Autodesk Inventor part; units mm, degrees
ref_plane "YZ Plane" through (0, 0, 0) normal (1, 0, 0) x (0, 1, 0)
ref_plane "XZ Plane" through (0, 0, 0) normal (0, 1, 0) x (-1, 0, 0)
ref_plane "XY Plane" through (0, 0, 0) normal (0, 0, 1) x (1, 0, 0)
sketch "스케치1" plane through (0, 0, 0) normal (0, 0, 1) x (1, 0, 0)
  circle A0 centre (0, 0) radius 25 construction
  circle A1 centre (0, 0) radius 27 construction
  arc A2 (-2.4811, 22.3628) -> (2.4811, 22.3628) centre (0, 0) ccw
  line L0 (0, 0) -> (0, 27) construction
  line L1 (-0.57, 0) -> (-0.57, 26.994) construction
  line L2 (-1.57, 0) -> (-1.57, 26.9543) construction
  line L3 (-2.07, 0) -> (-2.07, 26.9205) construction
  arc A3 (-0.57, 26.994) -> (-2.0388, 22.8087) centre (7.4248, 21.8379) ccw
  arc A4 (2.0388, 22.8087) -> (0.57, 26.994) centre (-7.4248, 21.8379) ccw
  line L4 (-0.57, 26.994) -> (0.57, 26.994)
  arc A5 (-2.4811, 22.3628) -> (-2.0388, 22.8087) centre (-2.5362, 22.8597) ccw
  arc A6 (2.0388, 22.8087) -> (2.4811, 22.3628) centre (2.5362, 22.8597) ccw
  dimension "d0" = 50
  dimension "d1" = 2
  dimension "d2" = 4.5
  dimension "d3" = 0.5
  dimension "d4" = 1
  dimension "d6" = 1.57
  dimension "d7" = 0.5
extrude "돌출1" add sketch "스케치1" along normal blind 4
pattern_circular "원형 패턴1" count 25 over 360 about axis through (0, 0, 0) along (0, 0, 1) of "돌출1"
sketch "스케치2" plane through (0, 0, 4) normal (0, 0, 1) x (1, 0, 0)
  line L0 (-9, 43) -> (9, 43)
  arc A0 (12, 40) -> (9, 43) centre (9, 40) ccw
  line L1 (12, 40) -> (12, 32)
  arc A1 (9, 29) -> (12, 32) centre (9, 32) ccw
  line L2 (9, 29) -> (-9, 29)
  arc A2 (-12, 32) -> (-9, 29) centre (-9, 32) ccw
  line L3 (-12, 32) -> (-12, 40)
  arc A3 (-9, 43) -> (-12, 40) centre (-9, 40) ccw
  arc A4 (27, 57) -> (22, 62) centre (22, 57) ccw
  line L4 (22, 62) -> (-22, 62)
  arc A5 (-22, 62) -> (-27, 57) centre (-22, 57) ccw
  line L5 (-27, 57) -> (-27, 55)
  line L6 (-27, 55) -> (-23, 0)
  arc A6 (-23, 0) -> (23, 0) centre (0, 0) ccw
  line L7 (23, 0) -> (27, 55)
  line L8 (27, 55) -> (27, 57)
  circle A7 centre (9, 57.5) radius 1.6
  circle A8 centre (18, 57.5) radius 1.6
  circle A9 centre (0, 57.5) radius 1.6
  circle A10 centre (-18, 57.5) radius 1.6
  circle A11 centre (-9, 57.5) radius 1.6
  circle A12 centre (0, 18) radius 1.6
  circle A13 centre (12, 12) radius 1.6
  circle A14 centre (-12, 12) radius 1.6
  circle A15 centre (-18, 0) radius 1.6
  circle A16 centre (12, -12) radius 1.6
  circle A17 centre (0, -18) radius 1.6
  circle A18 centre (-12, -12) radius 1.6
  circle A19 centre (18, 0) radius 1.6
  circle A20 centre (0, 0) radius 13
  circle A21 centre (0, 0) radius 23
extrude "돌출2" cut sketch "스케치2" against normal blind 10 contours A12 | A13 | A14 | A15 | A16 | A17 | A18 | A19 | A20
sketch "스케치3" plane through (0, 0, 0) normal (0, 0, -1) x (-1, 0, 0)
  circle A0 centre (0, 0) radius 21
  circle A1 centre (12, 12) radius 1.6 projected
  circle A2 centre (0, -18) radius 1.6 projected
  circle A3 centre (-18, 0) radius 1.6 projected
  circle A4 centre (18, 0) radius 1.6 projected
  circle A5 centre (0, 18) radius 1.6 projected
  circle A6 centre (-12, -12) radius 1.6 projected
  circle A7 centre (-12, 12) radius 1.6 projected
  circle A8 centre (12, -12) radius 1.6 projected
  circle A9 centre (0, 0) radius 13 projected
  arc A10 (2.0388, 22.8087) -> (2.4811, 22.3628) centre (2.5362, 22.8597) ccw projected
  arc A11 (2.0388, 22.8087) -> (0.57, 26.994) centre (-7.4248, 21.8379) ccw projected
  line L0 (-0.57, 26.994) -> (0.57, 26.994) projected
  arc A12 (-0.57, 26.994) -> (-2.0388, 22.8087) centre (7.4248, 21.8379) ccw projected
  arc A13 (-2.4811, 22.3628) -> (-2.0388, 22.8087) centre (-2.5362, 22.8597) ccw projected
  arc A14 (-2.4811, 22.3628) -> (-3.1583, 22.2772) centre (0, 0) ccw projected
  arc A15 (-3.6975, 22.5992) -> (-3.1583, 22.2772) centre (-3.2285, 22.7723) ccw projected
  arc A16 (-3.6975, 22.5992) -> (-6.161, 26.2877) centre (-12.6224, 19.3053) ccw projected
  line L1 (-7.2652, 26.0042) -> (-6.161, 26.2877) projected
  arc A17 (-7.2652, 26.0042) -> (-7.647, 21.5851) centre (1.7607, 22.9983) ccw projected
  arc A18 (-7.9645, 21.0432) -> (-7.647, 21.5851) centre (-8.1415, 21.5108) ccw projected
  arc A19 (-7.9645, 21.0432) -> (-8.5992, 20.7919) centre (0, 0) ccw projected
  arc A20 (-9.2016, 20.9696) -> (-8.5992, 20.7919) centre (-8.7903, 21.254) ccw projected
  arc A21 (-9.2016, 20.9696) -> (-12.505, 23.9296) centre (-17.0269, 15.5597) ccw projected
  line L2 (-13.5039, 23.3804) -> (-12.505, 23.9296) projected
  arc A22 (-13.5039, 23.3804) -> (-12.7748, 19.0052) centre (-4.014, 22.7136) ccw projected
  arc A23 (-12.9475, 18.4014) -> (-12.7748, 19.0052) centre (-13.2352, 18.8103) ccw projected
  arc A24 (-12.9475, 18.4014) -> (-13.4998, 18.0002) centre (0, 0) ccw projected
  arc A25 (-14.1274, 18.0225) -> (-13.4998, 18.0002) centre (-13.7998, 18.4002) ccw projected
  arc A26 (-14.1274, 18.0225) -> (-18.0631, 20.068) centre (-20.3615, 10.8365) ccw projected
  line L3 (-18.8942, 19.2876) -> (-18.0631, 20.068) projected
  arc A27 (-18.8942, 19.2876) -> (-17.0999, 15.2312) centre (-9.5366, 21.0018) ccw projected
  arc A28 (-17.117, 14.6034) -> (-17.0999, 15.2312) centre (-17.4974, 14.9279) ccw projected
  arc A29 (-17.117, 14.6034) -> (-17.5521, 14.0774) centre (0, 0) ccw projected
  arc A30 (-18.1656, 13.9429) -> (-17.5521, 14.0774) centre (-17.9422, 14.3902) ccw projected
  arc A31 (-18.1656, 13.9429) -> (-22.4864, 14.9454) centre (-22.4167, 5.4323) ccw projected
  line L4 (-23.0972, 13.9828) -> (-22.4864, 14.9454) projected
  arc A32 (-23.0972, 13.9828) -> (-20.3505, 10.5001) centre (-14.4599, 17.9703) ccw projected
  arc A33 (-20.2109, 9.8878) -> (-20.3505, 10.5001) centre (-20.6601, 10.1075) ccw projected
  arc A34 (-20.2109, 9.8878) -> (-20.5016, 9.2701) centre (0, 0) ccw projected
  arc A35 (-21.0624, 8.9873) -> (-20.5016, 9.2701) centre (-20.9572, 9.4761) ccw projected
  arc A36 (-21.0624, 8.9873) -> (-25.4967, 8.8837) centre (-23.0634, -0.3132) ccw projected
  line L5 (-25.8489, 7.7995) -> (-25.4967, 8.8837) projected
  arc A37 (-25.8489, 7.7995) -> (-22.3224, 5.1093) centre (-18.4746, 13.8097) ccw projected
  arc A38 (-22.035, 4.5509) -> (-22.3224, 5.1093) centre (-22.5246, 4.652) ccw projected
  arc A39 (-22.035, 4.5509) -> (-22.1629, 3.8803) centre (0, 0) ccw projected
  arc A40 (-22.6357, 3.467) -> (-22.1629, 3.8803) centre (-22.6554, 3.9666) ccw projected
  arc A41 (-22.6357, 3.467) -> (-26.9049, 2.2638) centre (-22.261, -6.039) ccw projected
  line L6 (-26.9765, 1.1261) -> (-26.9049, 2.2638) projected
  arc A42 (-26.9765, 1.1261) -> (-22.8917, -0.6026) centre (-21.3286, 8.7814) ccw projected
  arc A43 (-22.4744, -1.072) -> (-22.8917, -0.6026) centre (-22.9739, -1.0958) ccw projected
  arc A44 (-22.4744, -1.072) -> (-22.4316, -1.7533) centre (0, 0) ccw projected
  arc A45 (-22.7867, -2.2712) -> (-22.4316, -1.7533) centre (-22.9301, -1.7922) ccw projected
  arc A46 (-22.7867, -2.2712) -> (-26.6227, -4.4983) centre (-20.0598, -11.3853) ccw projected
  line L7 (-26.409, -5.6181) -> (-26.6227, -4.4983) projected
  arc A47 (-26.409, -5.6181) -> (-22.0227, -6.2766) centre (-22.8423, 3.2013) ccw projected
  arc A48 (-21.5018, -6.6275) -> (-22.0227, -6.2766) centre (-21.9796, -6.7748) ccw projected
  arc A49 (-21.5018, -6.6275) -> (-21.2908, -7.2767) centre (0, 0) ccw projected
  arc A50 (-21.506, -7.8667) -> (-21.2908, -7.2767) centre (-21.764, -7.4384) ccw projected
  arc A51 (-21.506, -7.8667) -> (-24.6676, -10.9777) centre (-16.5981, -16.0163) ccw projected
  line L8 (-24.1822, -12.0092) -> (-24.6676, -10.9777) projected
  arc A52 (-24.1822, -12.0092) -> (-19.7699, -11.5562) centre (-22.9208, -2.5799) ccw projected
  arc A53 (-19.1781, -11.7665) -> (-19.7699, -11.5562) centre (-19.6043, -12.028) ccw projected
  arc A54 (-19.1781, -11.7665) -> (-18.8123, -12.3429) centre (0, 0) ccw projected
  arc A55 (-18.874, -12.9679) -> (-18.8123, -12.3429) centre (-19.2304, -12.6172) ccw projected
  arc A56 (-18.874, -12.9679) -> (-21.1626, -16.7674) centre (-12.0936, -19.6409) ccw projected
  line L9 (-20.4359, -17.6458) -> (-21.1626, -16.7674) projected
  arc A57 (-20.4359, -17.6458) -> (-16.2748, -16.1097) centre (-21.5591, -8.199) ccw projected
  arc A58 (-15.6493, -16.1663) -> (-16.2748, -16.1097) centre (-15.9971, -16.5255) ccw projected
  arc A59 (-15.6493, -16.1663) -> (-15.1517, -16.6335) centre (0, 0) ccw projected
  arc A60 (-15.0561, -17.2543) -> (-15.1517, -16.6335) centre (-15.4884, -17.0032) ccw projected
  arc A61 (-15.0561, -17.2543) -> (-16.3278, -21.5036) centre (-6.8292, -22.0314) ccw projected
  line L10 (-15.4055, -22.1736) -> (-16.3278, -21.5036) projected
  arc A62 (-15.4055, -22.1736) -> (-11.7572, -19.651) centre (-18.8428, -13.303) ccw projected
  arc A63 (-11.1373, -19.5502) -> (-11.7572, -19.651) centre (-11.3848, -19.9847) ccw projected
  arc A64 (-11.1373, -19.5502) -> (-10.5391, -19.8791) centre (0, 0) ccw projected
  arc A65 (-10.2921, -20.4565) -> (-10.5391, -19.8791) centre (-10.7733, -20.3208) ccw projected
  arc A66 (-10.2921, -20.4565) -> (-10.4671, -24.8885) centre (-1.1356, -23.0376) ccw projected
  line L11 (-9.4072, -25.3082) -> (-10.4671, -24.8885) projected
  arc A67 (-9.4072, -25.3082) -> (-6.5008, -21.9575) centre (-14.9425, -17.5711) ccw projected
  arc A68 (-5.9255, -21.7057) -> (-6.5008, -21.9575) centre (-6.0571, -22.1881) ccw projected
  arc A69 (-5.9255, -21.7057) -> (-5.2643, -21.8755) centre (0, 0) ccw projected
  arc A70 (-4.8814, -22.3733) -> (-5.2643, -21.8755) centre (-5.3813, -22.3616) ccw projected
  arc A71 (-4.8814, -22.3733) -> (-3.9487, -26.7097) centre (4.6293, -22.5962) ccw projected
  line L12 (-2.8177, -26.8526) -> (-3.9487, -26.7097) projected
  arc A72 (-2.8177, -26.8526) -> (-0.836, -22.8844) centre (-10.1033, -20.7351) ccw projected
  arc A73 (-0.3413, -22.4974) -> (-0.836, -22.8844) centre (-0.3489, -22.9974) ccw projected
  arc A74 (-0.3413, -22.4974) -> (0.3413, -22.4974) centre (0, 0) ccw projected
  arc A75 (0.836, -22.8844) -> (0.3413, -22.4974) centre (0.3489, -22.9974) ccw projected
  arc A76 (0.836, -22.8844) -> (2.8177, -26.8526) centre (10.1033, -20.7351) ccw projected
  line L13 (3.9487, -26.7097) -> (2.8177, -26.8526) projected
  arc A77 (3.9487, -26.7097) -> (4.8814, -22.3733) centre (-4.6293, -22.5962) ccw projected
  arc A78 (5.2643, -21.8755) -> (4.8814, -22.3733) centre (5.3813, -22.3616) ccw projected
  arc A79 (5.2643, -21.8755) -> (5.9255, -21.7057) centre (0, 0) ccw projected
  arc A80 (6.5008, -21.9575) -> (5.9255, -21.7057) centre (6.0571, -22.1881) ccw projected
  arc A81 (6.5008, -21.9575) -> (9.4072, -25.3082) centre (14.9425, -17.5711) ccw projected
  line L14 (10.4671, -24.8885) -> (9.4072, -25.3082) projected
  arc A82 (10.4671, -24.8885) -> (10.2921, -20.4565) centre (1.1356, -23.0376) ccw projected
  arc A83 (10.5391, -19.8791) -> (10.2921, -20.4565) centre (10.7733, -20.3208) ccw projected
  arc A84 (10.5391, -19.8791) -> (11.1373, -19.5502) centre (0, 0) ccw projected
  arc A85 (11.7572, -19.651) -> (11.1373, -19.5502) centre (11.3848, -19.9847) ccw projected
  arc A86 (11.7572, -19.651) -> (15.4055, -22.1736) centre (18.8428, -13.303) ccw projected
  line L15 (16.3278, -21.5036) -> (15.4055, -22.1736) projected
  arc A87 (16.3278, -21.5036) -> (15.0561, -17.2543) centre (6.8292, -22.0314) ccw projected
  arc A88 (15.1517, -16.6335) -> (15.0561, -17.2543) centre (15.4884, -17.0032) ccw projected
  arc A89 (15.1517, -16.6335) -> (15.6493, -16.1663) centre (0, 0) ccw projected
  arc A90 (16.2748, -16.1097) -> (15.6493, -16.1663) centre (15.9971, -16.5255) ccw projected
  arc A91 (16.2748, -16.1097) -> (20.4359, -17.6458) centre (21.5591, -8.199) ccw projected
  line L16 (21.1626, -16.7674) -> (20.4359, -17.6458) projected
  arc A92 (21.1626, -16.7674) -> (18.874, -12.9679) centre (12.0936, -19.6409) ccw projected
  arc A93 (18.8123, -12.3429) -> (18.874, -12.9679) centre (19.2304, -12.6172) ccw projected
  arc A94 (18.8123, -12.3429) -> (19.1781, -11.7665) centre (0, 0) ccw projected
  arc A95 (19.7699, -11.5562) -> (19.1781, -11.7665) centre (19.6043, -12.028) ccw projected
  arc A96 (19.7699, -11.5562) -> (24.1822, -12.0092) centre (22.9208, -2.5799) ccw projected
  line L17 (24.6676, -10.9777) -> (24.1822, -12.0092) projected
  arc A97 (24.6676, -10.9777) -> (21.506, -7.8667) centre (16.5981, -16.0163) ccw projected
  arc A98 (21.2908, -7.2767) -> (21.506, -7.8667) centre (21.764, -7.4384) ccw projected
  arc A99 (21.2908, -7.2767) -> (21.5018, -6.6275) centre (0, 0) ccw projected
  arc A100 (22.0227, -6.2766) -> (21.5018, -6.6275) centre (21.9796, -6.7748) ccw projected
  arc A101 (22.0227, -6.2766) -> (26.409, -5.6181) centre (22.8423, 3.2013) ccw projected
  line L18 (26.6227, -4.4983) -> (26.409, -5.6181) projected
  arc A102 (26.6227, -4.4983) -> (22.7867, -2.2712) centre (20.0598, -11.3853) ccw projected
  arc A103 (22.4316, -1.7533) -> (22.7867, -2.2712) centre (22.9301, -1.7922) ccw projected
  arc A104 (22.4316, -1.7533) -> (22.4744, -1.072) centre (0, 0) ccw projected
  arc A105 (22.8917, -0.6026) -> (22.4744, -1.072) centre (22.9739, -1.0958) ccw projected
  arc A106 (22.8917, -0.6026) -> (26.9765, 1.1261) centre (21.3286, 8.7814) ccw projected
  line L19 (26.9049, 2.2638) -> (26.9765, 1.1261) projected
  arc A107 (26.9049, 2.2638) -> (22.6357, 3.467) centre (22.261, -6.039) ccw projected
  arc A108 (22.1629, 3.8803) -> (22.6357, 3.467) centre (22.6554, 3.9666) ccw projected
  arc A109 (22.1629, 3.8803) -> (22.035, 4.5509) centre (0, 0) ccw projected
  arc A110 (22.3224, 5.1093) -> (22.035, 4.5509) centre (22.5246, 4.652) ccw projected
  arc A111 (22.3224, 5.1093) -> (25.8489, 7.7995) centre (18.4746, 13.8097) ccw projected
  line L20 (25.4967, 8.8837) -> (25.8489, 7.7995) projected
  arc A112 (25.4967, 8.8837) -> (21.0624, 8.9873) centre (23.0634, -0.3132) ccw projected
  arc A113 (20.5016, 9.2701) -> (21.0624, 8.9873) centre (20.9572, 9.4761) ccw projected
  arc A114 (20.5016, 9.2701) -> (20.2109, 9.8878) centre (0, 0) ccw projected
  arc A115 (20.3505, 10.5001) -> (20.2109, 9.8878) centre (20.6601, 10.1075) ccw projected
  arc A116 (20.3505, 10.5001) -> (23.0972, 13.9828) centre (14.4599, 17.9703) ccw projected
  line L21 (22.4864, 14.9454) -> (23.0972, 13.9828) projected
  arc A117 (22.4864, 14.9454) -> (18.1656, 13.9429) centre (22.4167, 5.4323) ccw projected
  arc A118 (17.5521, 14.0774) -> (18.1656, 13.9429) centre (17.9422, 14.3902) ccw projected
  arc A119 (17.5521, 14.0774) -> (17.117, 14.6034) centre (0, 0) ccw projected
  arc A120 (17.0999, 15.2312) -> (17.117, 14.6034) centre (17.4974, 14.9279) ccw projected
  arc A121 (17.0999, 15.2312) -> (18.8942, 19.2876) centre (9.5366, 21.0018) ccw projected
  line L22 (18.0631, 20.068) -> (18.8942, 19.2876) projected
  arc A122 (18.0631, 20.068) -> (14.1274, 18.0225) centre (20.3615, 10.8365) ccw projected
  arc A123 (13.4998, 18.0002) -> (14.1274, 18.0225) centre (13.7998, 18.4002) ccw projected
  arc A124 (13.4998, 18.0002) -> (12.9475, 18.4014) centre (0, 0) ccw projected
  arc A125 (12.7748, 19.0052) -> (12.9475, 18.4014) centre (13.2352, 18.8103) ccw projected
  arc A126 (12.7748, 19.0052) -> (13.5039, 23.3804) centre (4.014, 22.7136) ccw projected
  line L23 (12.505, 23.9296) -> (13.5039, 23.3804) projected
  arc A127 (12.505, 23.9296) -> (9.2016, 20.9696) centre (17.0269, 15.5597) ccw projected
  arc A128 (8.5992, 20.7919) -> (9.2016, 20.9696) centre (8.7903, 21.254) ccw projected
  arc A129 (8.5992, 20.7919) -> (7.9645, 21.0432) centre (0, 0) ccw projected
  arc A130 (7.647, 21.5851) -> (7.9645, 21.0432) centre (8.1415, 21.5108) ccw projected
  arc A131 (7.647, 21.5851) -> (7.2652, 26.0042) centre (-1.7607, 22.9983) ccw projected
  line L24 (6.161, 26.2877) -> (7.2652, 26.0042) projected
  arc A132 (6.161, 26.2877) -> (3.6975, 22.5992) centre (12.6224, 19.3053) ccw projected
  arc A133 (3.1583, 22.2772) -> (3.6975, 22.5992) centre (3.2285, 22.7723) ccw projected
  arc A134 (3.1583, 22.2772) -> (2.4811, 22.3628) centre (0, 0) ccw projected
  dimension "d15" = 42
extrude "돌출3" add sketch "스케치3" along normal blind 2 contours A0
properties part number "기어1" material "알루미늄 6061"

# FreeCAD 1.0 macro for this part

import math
import FreeCAD as App
import Part
import Sketcher

V = App.Vector
Q = App.Units.Quantity

doc = App.newDocument("Part")
body = doc.addObject("PartDesign::Body", "Body")

# Sketch on XY plane
sketch1 = body.newObject("Sketcher::SketchObject", "Sketch")
sketch1.AttachmentSupport = (doc.getObject("XY_Plane"), [""])
sketch1.MapMode = "FlatFace"
sketch1.addGeometry(Part.ArcOfCircle(Part.Circle(V(-2.54, 22.86, 0), V(0, 0, 1), 0.5), math.radians(-84), math.radians(-6)), False)
sketch1.addGeometry(Part.ArcOfCircle(Part.Circle(V(0, 0, 0), V(0, 0, 1), 22.5), math.radians(96), math.radians(444)), False)
sketch1.addGeometry(Part.ArcOfCircle(Part.Circle(V(2.54, 22.86, 0), V(0, 0, 1), 0.5), math.radians(-174), math.radians(-96)), False)
sketch1.addGeometry(Part.ArcOfCircle(Part.Circle(V(-7.42, 21.84, 0), V(0, 0, 1), 9.51), math.radians(6), math.radians(33)), False)
sketch1.addGeometry(Part.LineSegment(V(0.57, 26.99, 0), V(-0.57, 26.99, 0)), False)
sketch1.addGeometry(Part.ArcOfCircle(Part.Circle(V(7.42, 21.84, 0), V(0, 0, 1), 9.51), math.radians(147), math.radians(174)), False)
sketch1.addConstraint(Sketcher.Constraint("Tangent", 0, 1, 1, 1))
sketch1.addConstraint(Sketcher.Constraint("Tangent", 1, 2, 2, 2))
sketch1.addConstraint(Sketcher.Constraint("Tangent", 2, 1, 3, 1))
sketch1.addConstraint(Sketcher.Constraint("Coincident", 3, 2, 4, 1))
sketch1.addConstraint(Sketcher.Constraint("Coincident", 4, 2, 5, 1))
sketch1.addConstraint(Sketcher.Constraint("Tangent", 5, 2, 0, 2))
sketch1.addConstraint(Sketcher.Constraint("Horizontal", 4))
sketch1.addConstraint(Sketcher.Constraint("Coincident", 1, 3, -1, 1))
sketch1.addConstraint(Sketcher.Constraint("Equal", 0, 2))
sketch1.addConstraint(Sketcher.Constraint("Equal", 3, 5))
sketch1.addConstraint(Sketcher.Constraint("Symmetric", 3, 3, 5, 3, -2))
sketch1.addConstraint(Sketcher.Constraint("Radius", 0, Q("0.5 mm")))
sketch1.addConstraint(Sketcher.Constraint("Radius", 1, Q("22.5 mm")))
sketch1.addConstraint(Sketcher.Constraint("DistanceX", 4, 2, 4, 1, Q("1.14 mm")))
sketch1.addConstraint(Sketcher.Constraint("Radius", 3, Q("9.5133 mm")))
sketch1.addConstraint(Sketcher.Constraint("DistanceX", 0, 1, 2, 1, Q("4.52 mm")))
sketch1.addConstraint(Sketcher.Constraint("DistanceY", -1, 1, 3, 3, Q("21.838 mm")))
pad1 = body.newObject("PartDesign::Pad", "Pad")
pad1.Profile = sketch1
pad1.Length = 4
doc.recompute()

polarpattern = body.newObject("PartDesign::PolarPattern", "PolarPattern")
polarpattern.Originals = [pad1]
polarpattern.Axis = (doc.getObject("Z_Axis"), [""])
polarpattern.Angle = 360
polarpattern.Occurrences = 25
body.Tip = polarpattern

# Sketch on XY plane
sketch2 = body.newObject("Sketcher::SketchObject", "Sketch001")
sketch2.AttachmentSupport = (doc.getObject("XY_Plane"), [""])
sketch2.MapMode = "FlatFace"
sketch2.AttachmentOffset = App.Placement(V(0, 0, 4), App.Rotation())
sketch2.addGeometry(Part.Circle(V(0, 18, 0), V(0, 0, 1), 1.6), False)
sketch2.addGeometry(Part.Circle(V(12, 12, 0), V(0, 0, 1), 1.6), False)
sketch2.addGeometry(Part.Circle(V(-12, 12, 0), V(0, 0, 1), 1.6), False)
sketch2.addGeometry(Part.Circle(V(-18, 0, 0), V(0, 0, 1), 1.6), False)
sketch2.addGeometry(Part.Circle(V(12, -12, 0), V(0, 0, 1), 1.6), False)
sketch2.addGeometry(Part.Circle(V(0, -18, 0), V(0, 0, 1), 1.6), False)
sketch2.addGeometry(Part.Circle(V(-12, -12, 0), V(0, 0, 1), 1.6), False)
sketch2.addGeometry(Part.Circle(V(18, 0, 0), V(0, 0, 1), 1.6), False)
sketch2.addGeometry(Part.Circle(V(0, 0, 0), V(0, 0, 1), 13), False)
sketch2.addConstraint(Sketcher.Constraint("Coincident", 8, 3, -1, 1))
sketch2.addConstraint(Sketcher.Constraint("Equal", 0, 1))
sketch2.addConstraint(Sketcher.Constraint("Equal", 1, 2))
sketch2.addConstraint(Sketcher.Constraint("Equal", 2, 3))
sketch2.addConstraint(Sketcher.Constraint("Equal", 3, 4))
sketch2.addConstraint(Sketcher.Constraint("Equal", 4, 5))
sketch2.addConstraint(Sketcher.Constraint("Equal", 5, 6))
sketch2.addConstraint(Sketcher.Constraint("Equal", 6, 7))
sketch2.addConstraint(Sketcher.Constraint("Symmetric", 2, 3, 4, 3, -1, 1))
sketch2.addConstraint(Sketcher.Constraint("Symmetric", 0, 3, 5, 3, -1, 1))
sketch2.addConstraint(Sketcher.Constraint("Symmetric", 1, 3, 6, 3, -1, 1))
sketch2.addConstraint(Sketcher.Constraint("Symmetric", 3, 3, 7, 3, -1, 1))
sketch2.addConstraint(Sketcher.Constraint("Symmetric", 1, 3, 2, 3, -2))
sketch2.addConstraint(Sketcher.Constraint("PointOnObject", 0, 3, -2))
sketch2.addConstraint(Sketcher.Constraint("PointOnObject", 3, 3, -1))
sketch2.addConstraint(Sketcher.Constraint("Diameter", 8, Q("26 mm")))
sketch2.addConstraint(Sketcher.Constraint("Diameter", 0, Q("3.2 mm")))
sketch2.addConstraint(Sketcher.Constraint("DistanceY", -1, 1, 0, 3, Q("18 mm")))
sketch2.addConstraint(Sketcher.Constraint("DistanceX", -1, 1, 1, 3, Q("12 mm")))
sketch2.addConstraint(Sketcher.Constraint("DistanceY", -1, 1, 1, 3, Q("12 mm")))
sketch2.addConstraint(Sketcher.Constraint("DistanceX", 3, 3, -1, 1, Q("18 mm")))
pocket1 = body.newObject("PartDesign::Pocket", "Pocket")
pocket1.Profile = sketch2
pocket1.Length = 10

# Sketch on XY plane
sketch3 = body.newObject("Sketcher::SketchObject", "Sketch002")
sketch3.AttachmentSupport = (doc.getObject("XY_Plane"), [""])
sketch3.MapMode = "FlatFace"
sketch3.addGeometry(Part.Circle(V(0, 0, 0), V(0, 0, 1), 21), False)
sketch3.addGeometry(Part.Circle(V(18, 0, 0), V(0, 0, 1), 1.6), False)
sketch3.addGeometry(Part.Circle(V(12, -12, 0), V(0, 0, 1), 1.6), False)
sketch3.addGeometry(Part.Circle(V(0, -18, 0), V(0, 0, 1), 1.6), False)
sketch3.addGeometry(Part.Circle(V(-12, -12, 0), V(0, 0, 1), 1.6), False)
sketch3.addGeometry(Part.Circle(V(0, 0, 0), V(0, 0, 1), 13), False)
sketch3.addGeometry(Part.Circle(V(-18, 0, 0), V(0, 0, 1), 1.6), False)
sketch3.addGeometry(Part.Circle(V(12, 12, 0), V(0, 0, 1), 1.6), False)
sketch3.addGeometry(Part.Circle(V(-12, 12, 0), V(0, 0, 1), 1.6), False)
sketch3.addGeometry(Part.Circle(V(0, 18, 0), V(0, 0, 1), 1.6), False)
sketch3.addConstraint(Sketcher.Constraint("Coincident", 0, 3, -1, 1))
sketch3.addConstraint(Sketcher.Constraint("Coincident", 5, 3, -1, 1))
sketch3.addConstraint(Sketcher.Constraint("Equal", 1, 2))
sketch3.addConstraint(Sketcher.Constraint("Equal", 2, 3))
sketch3.addConstraint(Sketcher.Constraint("Equal", 3, 4))
sketch3.addConstraint(Sketcher.Constraint("Equal", 4, 6))
sketch3.addConstraint(Sketcher.Constraint("Equal", 6, 7))
sketch3.addConstraint(Sketcher.Constraint("Equal", 7, 8))
sketch3.addConstraint(Sketcher.Constraint("Equal", 8, 9))
sketch3.addConstraint(Sketcher.Constraint("Symmetric", 1, 3, 6, 3, -1, 1))
sketch3.addConstraint(Sketcher.Constraint("Symmetric", 4, 3, 7, 3, -1, 1))
sketch3.addConstraint(Sketcher.Constraint("Symmetric", 2, 3, 8, 3, -1, 1))
sketch3.addConstraint(Sketcher.Constraint("Symmetric", 3, 3, 9, 3, -1, 1))
sketch3.addConstraint(Sketcher.Constraint("Symmetric", 2, 3, 4, 3, -2))
sketch3.addConstraint(Sketcher.Constraint("PointOnObject", 1, 3, -1))
sketch3.addConstraint(Sketcher.Constraint("PointOnObject", 3, 3, -2))
sketch3.addConstraint(Sketcher.Constraint("Diameter", 0, Q("42 mm")))
sketch3.addConstraint(Sketcher.Constraint("Diameter", 5, Q("26 mm")))
sketch3.addConstraint(Sketcher.Constraint("Diameter", 1, Q("3.2 mm")))
sketch3.addConstraint(Sketcher.Constraint("DistanceX", -1, 1, 1, 3, Q("18 mm")))
sketch3.addConstraint(Sketcher.Constraint("DistanceX", -1, 1, 2, 3, Q("12 mm")))
sketch3.addConstraint(Sketcher.Constraint("DistanceY", 2, 3, -1, 1, Q("12 mm")))
sketch3.addConstraint(Sketcher.Constraint("DistanceY", 3, 3, -1, 1, Q("18 mm")))
pad2 = body.newObject("PartDesign::Pad", "Pad001")
pad2.Profile = sketch3
pad2.Length = 2
pad2.Reversed = True

doc.recompute()
